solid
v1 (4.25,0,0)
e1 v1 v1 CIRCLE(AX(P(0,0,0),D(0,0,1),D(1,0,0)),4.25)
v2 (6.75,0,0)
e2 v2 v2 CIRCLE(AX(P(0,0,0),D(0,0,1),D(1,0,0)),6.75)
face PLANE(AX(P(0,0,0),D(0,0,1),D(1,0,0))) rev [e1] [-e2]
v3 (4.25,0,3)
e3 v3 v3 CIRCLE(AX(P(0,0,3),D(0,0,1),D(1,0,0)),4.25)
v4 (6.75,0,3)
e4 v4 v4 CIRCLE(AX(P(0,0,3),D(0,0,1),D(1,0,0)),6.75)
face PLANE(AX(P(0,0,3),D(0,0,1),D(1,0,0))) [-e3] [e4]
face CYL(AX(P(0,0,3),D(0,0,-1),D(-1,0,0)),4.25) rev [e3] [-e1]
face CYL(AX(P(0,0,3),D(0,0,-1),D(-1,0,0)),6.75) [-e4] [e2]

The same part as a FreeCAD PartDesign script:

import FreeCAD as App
import Part
import Sketcher
from FreeCAD import Vector

doc = App.newDocument("Part")
params = doc.addObject("Spreadsheet::Sheet", "Params")
for row, (alias, value) in enumerate([
    ("sketch1_diameter", "13.5 mm"),
    ("sketch1_diameter2", "8.5 mm"),
    ("pad1_length", "3 mm"),
], start=1):
    params.set(f"A{row}", alias)
    params.set(f"B{row}", "=" + value)
    params.setAlias(f"B{row}", alias)

body = doc.addObject("PartDesign::Body", "Body")

# Sketch on XY plane
sketch1 = body.newObject("Sketcher::SketchObject", "Sketch")
sketch1.AttachmentSupport = (doc.getObject("XY_Plane"), [""])
sketch1.MapMode = "FlatFace"
sketch1.addGeometry([
    Part.Circle(Vector(0, 0, 0), Vector(0, 0, 1), 6.8),
    Part.Circle(Vector(0, 0, 0), Vector(0, 0, 1), 4.2),
], False)
sketch1.addConstraint([
    Sketcher.Constraint("Coincident", 0, 3, -1, 1),
    Sketcher.Constraint("Coincident", 1, 3, -1, 1),
    Sketcher.Constraint("Diameter", 0, 13.5),
    Sketcher.Constraint("Diameter", 1, 8.5),
])
sketch1.setExpression("Constraints[2]", "Params.sketch1_diameter")
sketch1.setExpression("Constraints[3]", "Params.sketch1_diameter2")
pad1 = body.newObject("PartDesign::Pad", "Pad")
pad1.Profile = sketch1
pad1.setExpression("Length", "Params.pad1_length")

doc.recompute()
